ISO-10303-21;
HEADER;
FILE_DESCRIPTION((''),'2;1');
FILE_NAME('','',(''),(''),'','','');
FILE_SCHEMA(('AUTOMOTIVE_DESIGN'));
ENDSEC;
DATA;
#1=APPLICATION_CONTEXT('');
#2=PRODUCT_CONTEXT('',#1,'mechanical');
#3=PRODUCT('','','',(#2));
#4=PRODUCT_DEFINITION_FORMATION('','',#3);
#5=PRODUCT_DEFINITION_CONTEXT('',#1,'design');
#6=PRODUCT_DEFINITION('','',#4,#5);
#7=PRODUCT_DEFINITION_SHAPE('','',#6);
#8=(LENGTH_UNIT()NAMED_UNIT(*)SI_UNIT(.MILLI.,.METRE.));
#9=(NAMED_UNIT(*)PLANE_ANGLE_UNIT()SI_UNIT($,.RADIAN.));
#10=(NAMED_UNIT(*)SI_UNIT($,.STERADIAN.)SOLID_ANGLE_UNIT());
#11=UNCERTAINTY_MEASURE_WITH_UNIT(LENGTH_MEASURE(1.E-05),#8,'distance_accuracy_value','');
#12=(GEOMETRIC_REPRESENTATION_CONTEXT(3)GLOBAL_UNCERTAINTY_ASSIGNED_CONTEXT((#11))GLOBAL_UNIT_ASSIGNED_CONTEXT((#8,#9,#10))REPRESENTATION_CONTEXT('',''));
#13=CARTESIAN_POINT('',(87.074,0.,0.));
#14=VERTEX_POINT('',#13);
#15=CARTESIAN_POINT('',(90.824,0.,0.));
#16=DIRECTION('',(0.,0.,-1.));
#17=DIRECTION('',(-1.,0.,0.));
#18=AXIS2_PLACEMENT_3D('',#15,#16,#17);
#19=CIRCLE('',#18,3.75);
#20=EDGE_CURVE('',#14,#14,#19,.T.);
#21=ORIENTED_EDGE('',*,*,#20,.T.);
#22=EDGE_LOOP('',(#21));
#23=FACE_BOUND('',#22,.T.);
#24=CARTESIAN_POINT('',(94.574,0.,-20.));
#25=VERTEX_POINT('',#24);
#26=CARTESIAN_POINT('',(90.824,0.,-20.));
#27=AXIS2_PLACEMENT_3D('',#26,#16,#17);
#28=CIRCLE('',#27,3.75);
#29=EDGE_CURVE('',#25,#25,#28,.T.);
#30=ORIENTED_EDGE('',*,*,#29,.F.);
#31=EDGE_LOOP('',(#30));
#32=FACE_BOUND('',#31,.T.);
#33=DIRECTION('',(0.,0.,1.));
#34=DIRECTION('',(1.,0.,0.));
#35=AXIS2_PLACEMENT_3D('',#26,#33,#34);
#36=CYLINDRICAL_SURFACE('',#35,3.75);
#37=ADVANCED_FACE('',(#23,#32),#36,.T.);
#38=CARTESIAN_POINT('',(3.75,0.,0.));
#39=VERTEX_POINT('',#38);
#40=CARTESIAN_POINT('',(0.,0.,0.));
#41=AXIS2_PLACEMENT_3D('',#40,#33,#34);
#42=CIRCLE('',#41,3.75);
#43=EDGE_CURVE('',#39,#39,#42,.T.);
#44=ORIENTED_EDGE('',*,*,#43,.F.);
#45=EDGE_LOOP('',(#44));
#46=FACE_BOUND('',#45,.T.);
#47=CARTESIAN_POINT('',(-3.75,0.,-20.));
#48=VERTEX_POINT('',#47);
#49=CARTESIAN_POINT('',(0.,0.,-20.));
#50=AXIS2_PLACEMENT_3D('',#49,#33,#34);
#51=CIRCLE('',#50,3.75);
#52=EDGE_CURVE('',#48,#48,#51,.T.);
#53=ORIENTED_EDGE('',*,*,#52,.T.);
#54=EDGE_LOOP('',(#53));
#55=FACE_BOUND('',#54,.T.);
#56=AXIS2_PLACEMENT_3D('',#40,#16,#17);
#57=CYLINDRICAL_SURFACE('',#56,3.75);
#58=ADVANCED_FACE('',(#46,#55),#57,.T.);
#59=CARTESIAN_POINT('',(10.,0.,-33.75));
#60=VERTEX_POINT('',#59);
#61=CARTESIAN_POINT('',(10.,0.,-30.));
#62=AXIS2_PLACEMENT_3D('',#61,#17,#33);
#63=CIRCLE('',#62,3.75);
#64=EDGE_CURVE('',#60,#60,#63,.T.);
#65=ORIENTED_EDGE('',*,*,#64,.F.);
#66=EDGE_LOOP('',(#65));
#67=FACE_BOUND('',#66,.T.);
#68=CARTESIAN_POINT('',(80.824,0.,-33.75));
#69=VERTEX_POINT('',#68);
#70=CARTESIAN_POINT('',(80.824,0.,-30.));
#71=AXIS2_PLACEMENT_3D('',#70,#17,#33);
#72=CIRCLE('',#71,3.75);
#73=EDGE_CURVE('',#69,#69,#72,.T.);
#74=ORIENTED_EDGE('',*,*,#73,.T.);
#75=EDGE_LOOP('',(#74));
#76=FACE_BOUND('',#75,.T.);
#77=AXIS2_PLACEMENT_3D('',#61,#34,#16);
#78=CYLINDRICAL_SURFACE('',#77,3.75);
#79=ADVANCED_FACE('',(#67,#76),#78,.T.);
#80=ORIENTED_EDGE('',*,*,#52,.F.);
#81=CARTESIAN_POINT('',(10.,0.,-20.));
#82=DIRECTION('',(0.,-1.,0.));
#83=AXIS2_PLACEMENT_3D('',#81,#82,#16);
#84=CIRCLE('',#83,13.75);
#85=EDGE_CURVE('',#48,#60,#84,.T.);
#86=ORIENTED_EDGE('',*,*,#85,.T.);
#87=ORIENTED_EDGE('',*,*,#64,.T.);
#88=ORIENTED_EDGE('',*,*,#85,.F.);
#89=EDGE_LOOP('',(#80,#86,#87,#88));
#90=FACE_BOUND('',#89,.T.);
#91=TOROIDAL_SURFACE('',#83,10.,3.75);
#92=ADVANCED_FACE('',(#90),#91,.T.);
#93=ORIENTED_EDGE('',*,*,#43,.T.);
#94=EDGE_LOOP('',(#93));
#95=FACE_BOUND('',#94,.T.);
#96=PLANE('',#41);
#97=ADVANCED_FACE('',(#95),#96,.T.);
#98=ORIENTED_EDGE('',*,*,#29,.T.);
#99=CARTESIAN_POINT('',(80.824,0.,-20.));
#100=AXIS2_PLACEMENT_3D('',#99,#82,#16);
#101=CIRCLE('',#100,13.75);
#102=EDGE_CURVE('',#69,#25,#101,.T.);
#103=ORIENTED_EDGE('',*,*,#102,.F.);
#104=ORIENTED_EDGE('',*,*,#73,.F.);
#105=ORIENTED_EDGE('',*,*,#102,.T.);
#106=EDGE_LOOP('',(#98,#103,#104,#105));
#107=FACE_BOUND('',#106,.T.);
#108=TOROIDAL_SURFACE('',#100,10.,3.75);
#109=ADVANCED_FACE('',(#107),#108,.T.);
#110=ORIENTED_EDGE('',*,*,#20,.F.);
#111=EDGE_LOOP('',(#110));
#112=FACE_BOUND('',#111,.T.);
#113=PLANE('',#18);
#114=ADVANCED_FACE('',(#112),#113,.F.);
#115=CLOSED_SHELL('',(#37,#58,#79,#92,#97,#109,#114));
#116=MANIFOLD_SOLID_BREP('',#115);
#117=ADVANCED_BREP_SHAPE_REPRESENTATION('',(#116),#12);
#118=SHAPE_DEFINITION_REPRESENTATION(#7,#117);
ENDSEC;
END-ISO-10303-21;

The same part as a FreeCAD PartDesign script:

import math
import FreeCAD as App
import Part
import Sketcher

V = App.Vector
Q = App.Units.Quantity

doc = App.newDocument("Part")
body = doc.addObject("PartDesign::Body", "Body")

# Sketch on XY plane
sketch1 = body.newObject("Sketcher::SketchObject", "Sketch")
sketch1.AttachmentSupport = (doc.getObject("XY_Plane"), [""])
sketch1.MapMode = "FlatFace"
sketch1.addGeometry(Part.Circle(V(0, 0, 0), V(0, 0, 1), 3.8), False)
sketch1.addConstraint(Sketcher.Constraint("Coincident", 0, 3, -1, 1))
sketch1.addConstraint(Sketcher.Constraint("Diameter", 0, Q("7.5 mm")))

# Sketch on XZ plane
sketch2 = body.newObject("Sketcher::SketchObject", "Sketch001")
sketch2.AttachmentSupport = (doc.getObject("XZ_Plane"), [""])
sketch2.MapMode = "FlatFace"
sketch2.addGeometry(Part.LineSegment(V(0, 0, 0), V(0, -20, 0)), False)
sketch2.addGeometry(Part.ArcOfCircle(Part.Circle(V(10, -20, 0), V(0, 0, 1), 10), math.radians(180), math.radians(270)), False)
sketch2.addGeometry(Part.LineSegment(V(10, -30, 0), V(81, -30, 0)), False)
sketch2.addGeometry(Part.ArcOfCircle(Part.Circle(V(81, -20, 0), V(0, 0, 1), 10), math.radians(-90), math.radians(0)), False)
sketch2.addGeometry(Part.LineSegment(V(91, -20, 0), V(91, 0, 0)), False)
sketch2.addConstraint(Sketcher.Constraint("Tangent", 0, 2, 1, 1))
sketch2.addConstraint(Sketcher.Constraint("Tangent", 1, 2, 2, 1))
sketch2.addConstraint(Sketcher.Constraint("Tangent", 2, 2, 3, 1))
sketch2.addConstraint(Sketcher.Constraint("Tangent", 3, 2, 4, 1))
sketch2.addConstraint(Sketcher.Constraint("Vertical", 0))
sketch2.addConstraint(Sketcher.Constraint("Horizontal", 2))
sketch2.addConstraint(Sketcher.Constraint("Vertical", 4))
sketch2.addConstraint(Sketcher.Constraint("Coincident", 0, 1, -1, 1))
sketch2.addConstraint(Sketcher.Constraint("Equal", 1, 3))
sketch2.addConstraint(Sketcher.Constraint("PointOnObject", 4, 2, -1))
sketch2.addConstraint(Sketcher.Constraint("Radius", 1, Q("10 mm")))
sketch2.addConstraint(Sketcher.Constraint("DistanceY", 0, 2, 0, 1, Q("20 mm")))
sketch2.addConstraint(Sketcher.Constraint("DistanceX", 2, 1, 2, 2, Q("70.824 mm")))
doc.recompute()

additivepipe = body.newObject("PartDesign::AdditivePipe", "AdditivePipe")
additivepipe.Profile = sketch1
additivepipe.Spine = (sketch2, ["Edge1", "Edge2", "Edge3", "Edge4", "Edge5"])

doc.recompute()
